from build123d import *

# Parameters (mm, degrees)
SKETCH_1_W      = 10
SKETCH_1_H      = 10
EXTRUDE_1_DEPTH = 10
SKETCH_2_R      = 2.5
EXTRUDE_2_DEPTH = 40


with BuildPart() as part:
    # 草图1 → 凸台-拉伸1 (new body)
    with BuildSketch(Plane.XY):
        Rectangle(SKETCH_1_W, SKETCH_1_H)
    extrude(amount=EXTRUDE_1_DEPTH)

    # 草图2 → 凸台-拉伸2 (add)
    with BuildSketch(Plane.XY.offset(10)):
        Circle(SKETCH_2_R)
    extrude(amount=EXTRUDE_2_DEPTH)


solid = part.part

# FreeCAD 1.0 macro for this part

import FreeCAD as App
import Part
import Sketcher

V = App.Vector


def add_polygon(sketch, points):
    """Adds a closed chain of lines whose ends are joined by coincident constraints."""
    first, n = sketch.GeometryCount, len(points)
    for a, b in zip(points, points[1:] + points[:1]):
        sketch.addGeometry(Part.LineSegment(App.Vector(*a, 0), App.Vector(*b, 0)), False)
    for i in range(n):
        sketch.addConstraint(Sketcher.Constraint("Coincident", first + i, 2, first + (i + 1) % n, 1))

doc = App.newDocument("Part")
body = doc.addObject("PartDesign::Body", "Body")

# Sketch on XY plane
sketch1 = body.newObject("Sketcher::SketchObject", "Sketch")
sketch1.AttachmentSupport = (doc.getObject("XY_Plane"), [""])
sketch1.MapMode = "FlatFace"
add_polygon(sketch1, [(-5, 5), (-5, -5), (5, -5), (5, 5)])  # lines 0-3
sketch1.addConstraint([
    Sketcher.Constraint("Vertical", 0),
    Sketcher.Constraint("Horizontal", 1),
    Sketcher.Constraint("Vertical", 2),
    Sketcher.Constraint("Horizontal", 3),
    Sketcher.Constraint("Symmetric", 0, 2, 2, 2, -1, 1),
    Sketcher.Constraint("Equal", 3, 0),
    Sketcher.Constraint("DistanceX", 1, 1, 1, 2, 10.0),
])
pad1 = body.newObject("PartDesign::Pad", "Pad")
pad1.Profile = sketch1
pad1.Length = 10

# Sketch on XY plane
sketch2 = body.newObject("Sketcher::SketchObject", "Sketch001")
sketch2.AttachmentSupport = (doc.getObject("XY_Plane"), [""])
sketch2.MapMode = "FlatFace"
sketch2.AttachmentOffset = App.Placement(V(0, 0, 10), App.Rotation())
sketch2.addGeometry(Part.Circle(V(0, 0, 0), V(0, 0, 1), 2.5), False)
sketch2.addConstraint([
    Sketcher.Constraint("Coincident", 0, 3, -1, 1),
    Sketcher.Constraint("Diameter", 0, 5.0),
])
pad2 = body.newObject("PartDesign::Pad", "Pad001")
pad2.Profile = sketch2
pad2.Length = 40

doc.recompute()
